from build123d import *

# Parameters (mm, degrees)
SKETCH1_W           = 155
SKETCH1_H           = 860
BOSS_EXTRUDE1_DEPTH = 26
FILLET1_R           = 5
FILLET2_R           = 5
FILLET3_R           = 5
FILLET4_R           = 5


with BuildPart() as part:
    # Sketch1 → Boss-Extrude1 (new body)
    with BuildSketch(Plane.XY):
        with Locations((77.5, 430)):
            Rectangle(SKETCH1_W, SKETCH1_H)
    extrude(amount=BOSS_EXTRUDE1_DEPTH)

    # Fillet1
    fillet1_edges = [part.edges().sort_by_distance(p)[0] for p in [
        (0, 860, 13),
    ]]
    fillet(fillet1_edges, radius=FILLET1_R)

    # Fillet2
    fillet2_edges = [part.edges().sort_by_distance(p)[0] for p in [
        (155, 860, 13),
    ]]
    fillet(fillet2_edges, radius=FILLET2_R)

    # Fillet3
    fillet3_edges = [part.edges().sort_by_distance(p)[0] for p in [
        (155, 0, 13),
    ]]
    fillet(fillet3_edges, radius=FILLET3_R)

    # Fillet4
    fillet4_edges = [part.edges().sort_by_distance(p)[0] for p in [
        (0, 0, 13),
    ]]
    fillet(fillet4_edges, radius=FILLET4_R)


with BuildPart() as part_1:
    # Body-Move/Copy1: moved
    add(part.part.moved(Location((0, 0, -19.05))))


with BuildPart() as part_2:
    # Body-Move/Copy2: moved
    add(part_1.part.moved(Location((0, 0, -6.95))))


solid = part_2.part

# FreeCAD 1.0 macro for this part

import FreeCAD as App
import Part
import Sketcher


def edges_at(feature, points):
    """Names of the edges that pass closest to the given points."""
    edges = feature.Shape.Edges
    near = lambda p: min(range(len(edges)), key=lambda i: edges[i].distToShape(Part.Vertex(*p))[0])
    return sorted({f"Edge{near(p) + 1}" for p in points})

doc = App.newDocument("Part")
body = doc.addObject("PartDesign::Body", "Body")

# Sketch on XY plane
sketch1 = body.newObject("Sketcher::SketchObject", "Sketch")
sketch1.AttachmentSupport = (doc.getObject("XY_Plane"), [""])
sketch1.MapMode = "FlatFace"
sketch1.addGeometry(Part.LineSegment(App.Vector(0, 860, 0), App.Vector(0, 0, 0)), False)
sketch1.addGeometry(Part.LineSegment(App.Vector(0, 0, 0), App.Vector(155, 0, 0)), False)
sketch1.addGeometry(Part.LineSegment(App.Vector(155, 0, 0), App.Vector(155, 860, 0)), False)
sketch1.addGeometry(Part.LineSegment(App.Vector(155, 860, 0), App.Vector(0, 860, 0)), False)
sketch1.addConstraint(Sketcher.Constraint("Coincident", 0, 2, 1, 1))
sketch1.addConstraint(Sketcher.Constraint("Coincident", 1, 2, 2, 1))
sketch1.addConstraint(Sketcher.Constraint("Coincident", 2, 2, 3, 1))
sketch1.addConstraint(Sketcher.Constraint("Coincident", 3, 2, 0, 1))
sketch1.addConstraint(Sketcher.Constraint("Vertical", 0))
sketch1.addConstraint(Sketcher.Constraint("Horizontal", 1))
sketch1.addConstraint(Sketcher.Constraint("Vertical", 2))
sketch1.addConstraint(Sketcher.Constraint("Horizontal", 3))
sketch1.addConstraint(Sketcher.Constraint("Coincident", 0, 2, -1, 1))
sketch1.addConstraint(Sketcher.Constraint("DistanceX", 1, 1, 1, 2, 155.0))
sketch1.addConstraint(Sketcher.Constraint("DistanceY", 0, 2, 0, 1, 860.0))
pad1 = body.newObject("PartDesign::Pad", "Pad")
pad1.Profile = sketch1
pad1.Length = 26
doc.recompute()

fillet = body.newObject("PartDesign::Fillet", "Fillet")
fillet.Base = (pad1, edges_at(pad1, [(0, 860, 13)]))
fillet.Radius = 5
doc.recompute()

fillet2 = body.newObject("PartDesign::Fillet", "Fillet001")
fillet2.Base = (fillet, edges_at(fillet, [(155, 860, 13)]))
fillet2.Radius = 5
doc.recompute()

fillet3 = body.newObject("PartDesign::Fillet", "Fillet002")
fillet3.Base = (fillet2, edges_at(fillet2, [(155, 0, 13)]))
fillet3.Radius = 5
doc.recompute()

fillet4 = body.newObject("PartDesign::Fillet", "Fillet003")
fillet4.Base = (fillet3, edges_at(fillet3, [(0, 0, 13)]))
fillet4.Radius = 5
body2 = doc.addObject("PartDesign::Body", "Body001")
doc.recompute()

body.Placement = App.Placement(App.Vector(0, 0, -19.05), App.Rotation(App.Vector(0, 0, 1), 0))
boolean = body2.newObject("PartDesign::Boolean", "Boolean")
boolean.Type = "Fuse"
boolean.addObjects([body])
body3 = doc.addObject("PartDesign::Body", "Body002")
doc.recompute()

body2.Placement = App.Placement(App.Vector(0, 0, -6.95), App.Rotation(App.Vector(0, 0, 1), 0))
boolean2 = body3.newObject("PartDesign::Boolean", "Boolean001")
boolean2.Type = "Fuse"
boolean2.addObjects([body2])

doc.recompute()
